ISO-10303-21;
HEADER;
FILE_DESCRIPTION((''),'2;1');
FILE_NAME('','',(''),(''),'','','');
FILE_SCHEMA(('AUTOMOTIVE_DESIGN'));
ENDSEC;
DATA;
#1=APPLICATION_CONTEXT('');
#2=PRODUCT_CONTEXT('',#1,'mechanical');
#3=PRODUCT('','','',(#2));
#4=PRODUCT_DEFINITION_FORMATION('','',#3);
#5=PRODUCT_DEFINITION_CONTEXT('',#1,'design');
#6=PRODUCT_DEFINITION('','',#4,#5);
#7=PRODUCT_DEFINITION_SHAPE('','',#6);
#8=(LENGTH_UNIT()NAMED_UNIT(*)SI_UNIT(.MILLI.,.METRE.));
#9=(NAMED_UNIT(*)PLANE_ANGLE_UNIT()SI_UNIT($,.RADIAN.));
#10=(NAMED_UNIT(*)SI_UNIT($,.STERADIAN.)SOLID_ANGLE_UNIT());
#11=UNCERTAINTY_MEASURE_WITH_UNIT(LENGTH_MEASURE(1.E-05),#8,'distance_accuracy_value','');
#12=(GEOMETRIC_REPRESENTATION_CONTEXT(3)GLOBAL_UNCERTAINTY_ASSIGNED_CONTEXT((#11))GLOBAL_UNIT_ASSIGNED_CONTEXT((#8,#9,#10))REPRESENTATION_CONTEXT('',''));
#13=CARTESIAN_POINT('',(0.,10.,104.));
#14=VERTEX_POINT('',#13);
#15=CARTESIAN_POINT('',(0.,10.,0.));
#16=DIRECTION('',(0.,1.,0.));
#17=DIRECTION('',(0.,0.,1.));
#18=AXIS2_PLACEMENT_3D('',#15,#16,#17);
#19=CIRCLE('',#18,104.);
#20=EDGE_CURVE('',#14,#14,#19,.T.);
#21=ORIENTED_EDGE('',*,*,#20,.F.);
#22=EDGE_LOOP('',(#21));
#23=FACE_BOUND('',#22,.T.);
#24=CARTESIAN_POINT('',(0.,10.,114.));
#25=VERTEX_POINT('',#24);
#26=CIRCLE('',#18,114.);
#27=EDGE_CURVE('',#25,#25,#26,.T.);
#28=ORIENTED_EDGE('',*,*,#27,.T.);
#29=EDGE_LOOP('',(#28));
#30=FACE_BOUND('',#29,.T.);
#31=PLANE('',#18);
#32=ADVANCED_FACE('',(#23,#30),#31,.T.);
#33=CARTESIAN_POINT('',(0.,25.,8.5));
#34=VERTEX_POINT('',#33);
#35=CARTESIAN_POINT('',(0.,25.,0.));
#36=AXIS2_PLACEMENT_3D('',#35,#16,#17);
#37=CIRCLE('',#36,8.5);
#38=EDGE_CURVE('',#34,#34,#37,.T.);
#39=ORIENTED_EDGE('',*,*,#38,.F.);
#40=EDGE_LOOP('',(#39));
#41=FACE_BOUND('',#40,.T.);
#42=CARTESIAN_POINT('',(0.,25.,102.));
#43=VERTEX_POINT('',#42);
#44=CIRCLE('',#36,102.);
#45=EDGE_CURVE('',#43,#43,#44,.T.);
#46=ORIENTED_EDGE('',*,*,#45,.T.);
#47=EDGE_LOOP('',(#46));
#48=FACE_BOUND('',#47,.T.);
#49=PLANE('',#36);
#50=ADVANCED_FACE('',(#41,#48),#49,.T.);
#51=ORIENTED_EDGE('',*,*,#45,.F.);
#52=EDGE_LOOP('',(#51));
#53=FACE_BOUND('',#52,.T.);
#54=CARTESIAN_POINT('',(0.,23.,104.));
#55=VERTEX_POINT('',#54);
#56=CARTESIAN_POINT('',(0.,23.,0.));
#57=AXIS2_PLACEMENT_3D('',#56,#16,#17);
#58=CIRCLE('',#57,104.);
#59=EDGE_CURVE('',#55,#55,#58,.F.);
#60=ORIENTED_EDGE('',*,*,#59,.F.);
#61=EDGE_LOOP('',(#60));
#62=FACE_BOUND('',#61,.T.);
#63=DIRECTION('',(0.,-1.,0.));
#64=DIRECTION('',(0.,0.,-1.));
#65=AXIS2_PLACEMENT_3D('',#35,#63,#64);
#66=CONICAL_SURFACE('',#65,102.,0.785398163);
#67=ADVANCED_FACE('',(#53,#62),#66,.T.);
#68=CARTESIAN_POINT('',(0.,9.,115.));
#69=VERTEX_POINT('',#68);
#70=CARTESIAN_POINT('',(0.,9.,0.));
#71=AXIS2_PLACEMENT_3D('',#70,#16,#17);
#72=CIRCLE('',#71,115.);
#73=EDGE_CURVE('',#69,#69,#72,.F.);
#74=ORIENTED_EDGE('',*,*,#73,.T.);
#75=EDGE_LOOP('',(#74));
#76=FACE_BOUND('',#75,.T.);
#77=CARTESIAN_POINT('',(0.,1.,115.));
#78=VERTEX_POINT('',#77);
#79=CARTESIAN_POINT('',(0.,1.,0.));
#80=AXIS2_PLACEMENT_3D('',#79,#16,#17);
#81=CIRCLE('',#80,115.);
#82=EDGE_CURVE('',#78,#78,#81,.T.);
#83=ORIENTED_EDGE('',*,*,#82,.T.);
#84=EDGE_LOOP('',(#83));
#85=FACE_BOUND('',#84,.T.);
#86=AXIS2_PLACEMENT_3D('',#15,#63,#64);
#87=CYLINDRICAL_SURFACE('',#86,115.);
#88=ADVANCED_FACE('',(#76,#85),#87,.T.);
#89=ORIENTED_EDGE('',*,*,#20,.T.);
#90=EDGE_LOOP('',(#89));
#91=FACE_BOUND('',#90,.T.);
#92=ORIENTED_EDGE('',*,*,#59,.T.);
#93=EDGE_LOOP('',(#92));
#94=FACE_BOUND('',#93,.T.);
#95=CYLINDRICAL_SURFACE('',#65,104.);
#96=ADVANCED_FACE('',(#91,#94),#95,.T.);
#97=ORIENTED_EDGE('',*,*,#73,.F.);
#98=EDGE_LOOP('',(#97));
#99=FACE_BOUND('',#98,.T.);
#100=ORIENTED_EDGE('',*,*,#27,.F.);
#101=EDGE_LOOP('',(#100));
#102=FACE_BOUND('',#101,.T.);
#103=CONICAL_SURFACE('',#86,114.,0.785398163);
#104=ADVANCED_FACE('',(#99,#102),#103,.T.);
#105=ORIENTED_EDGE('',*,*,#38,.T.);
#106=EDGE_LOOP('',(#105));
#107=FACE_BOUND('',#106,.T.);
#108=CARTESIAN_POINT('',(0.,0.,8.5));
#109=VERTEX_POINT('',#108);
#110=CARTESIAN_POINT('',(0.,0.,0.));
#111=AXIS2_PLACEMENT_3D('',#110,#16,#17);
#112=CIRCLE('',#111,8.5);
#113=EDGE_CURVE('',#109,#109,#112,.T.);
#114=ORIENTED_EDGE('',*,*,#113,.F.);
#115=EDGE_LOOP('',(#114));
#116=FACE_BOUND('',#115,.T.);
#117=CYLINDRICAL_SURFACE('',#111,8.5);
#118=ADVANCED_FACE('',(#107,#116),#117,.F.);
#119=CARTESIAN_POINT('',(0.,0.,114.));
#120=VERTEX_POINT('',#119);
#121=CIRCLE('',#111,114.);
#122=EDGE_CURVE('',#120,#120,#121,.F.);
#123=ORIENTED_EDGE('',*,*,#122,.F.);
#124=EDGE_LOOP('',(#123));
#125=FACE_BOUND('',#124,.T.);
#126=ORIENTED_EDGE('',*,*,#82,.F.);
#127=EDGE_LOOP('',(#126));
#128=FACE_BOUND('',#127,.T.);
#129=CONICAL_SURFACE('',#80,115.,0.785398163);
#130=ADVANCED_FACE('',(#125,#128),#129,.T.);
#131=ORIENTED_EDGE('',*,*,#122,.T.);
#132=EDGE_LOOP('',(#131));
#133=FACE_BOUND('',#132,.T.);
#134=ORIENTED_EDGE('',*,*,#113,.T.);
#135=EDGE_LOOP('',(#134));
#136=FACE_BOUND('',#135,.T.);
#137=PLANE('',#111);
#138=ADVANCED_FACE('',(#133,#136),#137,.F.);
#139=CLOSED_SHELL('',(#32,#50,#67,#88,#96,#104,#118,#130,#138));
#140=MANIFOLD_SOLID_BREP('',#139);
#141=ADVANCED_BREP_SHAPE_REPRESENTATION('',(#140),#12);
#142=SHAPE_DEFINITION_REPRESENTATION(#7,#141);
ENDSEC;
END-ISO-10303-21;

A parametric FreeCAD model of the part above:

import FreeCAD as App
import Part
import Sketcher

V = App.Vector


def edges_at(feature, points):
    """Names of the edges that pass closest to the given points."""
    edges = feature.Shape.Edges
    near = lambda p: min(range(len(edges)), key=lambda i: edges[i].distToShape(Part.Vertex(*p))[0])
    return sorted({f"Edge{near(p) + 1}" for p in points})

doc = App.newDocument("Part")
params = doc.addObject("Spreadsheet::Sheet", "Params")
for row, (alias, value) in enumerate([
    ("sketch1_diameter", "230 mm"),
    ("pad1_length", "10 mm"),
    ("sketch2_diameter", "208 mm"),
    ("pad2_length", "15 mm"),
    ("chamfer_size", "1 mm"),
    ("chamfer2_size", "2 mm"),
    ("sketch3_diameter", "17 mm"),
    ("pocket1_length", "25 mm"),
], start=1):
    params.set(f"A{row}", alias)
    params.set(f"B{row}", "=" + value)
    params.setAlias(f"B{row}", alias)

body = doc.addObject("PartDesign::Body", "Body")

sketch1 = doc.addObject("Sketcher::SketchObject", "Sketch")
body.addObject(sketch1)
sketch1.AttachmentSupport = (doc.XZ_Plane, [""])
sketch1.MapMode = "FlatFace"
sketch1.addGeometry(Part.Circle(V(0, 0, 0), V(0, 0, 1), 115), False)
sketch1.addConstraint(Sketcher.Constraint("Coincident", 0, 3, -1, 1))
sketch1.addConstraint(Sketcher.Constraint("Diameter", 0, 230.0))
sketch1.setExpression("Constraints[1]", "Params.sketch1_diameter")
pad1 = doc.addObject("PartDesign::Pad", "Pad")
body.addObject(pad1)
pad1.Profile = sketch1
pad1.setExpression("Length", "Params.pad1_length")
pad1.Reversed = True

sketch2 = doc.addObject("Sketcher::SketchObject", "Sketch001")
body.addObject(sketch2)
sketch2.AttachmentSupport = (doc.XZ_Plane, [""])
sketch2.MapMode = "FlatFace"
sketch2.AttachmentOffset = App.Placement(V(0, 0, -10), App.Rotation())
sketch2.addGeometry(Part.Circle(V(0, 0, 0), V(0, 0, 1), 104), False)
sketch2.addConstraint(Sketcher.Constraint("Coincident", 0, 3, -1, 1))
sketch2.addConstraint(Sketcher.Constraint("Diameter", 0, 208.0))
sketch2.setExpression("Constraints[1]", "Params.sketch2_diameter")
pad2 = doc.addObject("PartDesign::Pad", "Pad001")
body.addObject(pad2)
pad2.Profile = sketch2
pad2.setExpression("Length", "Params.pad2_length")
pad2.Reversed = True
doc.recompute()

chamfer = doc.addObject("PartDesign::Chamfer", "Chamfer")
body.addObject(chamfer)
chamfer.Base = (pad2, edges_at(pad2, [(-115, 0, 0), (-115, 10, 0)]))
chamfer.setExpression("Size", "Params.chamfer_size")
doc.recompute()

chamfer2 = doc.addObject("PartDesign::Chamfer", "Chamfer001")
body.addObject(chamfer2)
chamfer2.Base = (chamfer, edges_at(chamfer, [(-104, 25, 0)]))
chamfer2.setExpression("Size", "Params.chamfer2_size")

sketch3 = doc.addObject("Sketcher::SketchObject", "Sketch002")
body.addObject(sketch3)
sketch3.AttachmentSupport = (doc.XZ_Plane, [""])
sketch3.MapMode = "FlatFace"
sketch3.AttachmentOffset = App.Placement(V(0, 0, -25), App.Rotation())
sketch3.addGeometry(Part.Circle(V(0, 0, 0), V(0, 0, 1), 8), False)
sketch3.addConstraint(Sketcher.Constraint("Coincident", 0, 3, -1, 1))
sketch3.addConstraint(Sketcher.Constraint("Diameter", 0, 17.0))
sketch3.setExpression("Constraints[1]", "Params.sketch3_diameter")
pocket1 = doc.addObject("PartDesign::Pocket", "Pocket")
body.addObject(pocket1)
pocket1.Profile = sketch3
pocket1.setExpression("Length", "Params.pocket1_length")
pocket1.Reversed = True

doc.recompute()
